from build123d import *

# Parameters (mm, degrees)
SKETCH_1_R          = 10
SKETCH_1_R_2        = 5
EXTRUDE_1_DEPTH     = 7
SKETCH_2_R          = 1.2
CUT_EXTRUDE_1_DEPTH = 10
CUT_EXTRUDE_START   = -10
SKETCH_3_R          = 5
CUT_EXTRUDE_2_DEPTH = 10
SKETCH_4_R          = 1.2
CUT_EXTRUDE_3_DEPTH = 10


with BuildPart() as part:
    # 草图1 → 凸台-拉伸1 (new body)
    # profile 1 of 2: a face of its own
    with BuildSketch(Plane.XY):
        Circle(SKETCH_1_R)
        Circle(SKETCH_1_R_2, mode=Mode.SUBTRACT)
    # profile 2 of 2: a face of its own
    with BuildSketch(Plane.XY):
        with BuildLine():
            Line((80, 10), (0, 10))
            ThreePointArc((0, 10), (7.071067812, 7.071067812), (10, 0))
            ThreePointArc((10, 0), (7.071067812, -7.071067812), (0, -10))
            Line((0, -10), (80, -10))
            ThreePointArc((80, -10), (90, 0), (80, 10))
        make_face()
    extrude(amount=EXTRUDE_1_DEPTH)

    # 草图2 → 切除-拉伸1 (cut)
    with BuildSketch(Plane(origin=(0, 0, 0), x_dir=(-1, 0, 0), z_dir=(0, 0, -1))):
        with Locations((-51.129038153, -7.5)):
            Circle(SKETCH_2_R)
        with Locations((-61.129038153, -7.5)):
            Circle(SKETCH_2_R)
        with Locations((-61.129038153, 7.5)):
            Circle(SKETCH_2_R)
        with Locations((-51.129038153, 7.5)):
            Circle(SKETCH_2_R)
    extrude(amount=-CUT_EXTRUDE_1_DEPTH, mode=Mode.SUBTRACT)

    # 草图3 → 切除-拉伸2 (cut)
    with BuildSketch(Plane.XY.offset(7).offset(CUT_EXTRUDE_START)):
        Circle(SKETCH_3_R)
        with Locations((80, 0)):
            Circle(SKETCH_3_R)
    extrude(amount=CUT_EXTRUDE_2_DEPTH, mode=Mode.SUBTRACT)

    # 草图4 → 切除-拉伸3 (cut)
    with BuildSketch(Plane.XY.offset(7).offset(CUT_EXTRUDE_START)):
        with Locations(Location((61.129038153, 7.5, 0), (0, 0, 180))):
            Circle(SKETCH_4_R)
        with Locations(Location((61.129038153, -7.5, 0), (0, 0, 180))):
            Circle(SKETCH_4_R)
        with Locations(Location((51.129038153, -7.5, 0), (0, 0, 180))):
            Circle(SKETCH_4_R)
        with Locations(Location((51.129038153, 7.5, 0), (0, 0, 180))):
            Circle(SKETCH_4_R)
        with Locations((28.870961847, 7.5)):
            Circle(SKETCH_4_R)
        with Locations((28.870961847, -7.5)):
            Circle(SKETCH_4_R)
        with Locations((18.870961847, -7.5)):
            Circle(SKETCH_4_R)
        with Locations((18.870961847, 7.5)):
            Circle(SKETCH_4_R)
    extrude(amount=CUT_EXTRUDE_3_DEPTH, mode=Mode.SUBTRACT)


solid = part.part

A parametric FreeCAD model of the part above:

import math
import FreeCAD as App
import Part
import Sketcher
from FreeCAD import Vector
Q = App.Units.Quantity

doc = App.newDocument("Part")
body = doc.addObject("PartDesign::Body", "Body")

sketch1 = body.newObject("Sketcher::SketchObject", "Sketch")
sketch1.AttachmentSupport = (doc.getObject("XY_Plane"), [""])
sketch1.MapMode = "FlatFace"
sketch1.addGeometry([
    Part.ArcOfCircle(Part.Circle(Vector(0, 0, 0), Vector(0, 0, 1), 10), math.radians(90), math.radians(270)),
    Part.LineSegment(Vector(0, -10, 0), Vector(80, -10, 0)),
    Part.ArcOfCircle(Part.Circle(Vector(80, 0, 0), Vector(0, 0, 1), 10), math.radians(-90), math.radians(90)),
    Part.LineSegment(Vector(80, 10, 0), Vector(0, 10, 0)),
    Part.Circle(Vector(0, 0, 0), Vector(0, 0, 1), 5),
], False)
sketch1.addConstraint([
    Sketcher.Constraint("Tangent", 0, 2, 1, 1),
    Sketcher.Constraint("Tangent", 1, 2, 2, 1),
    Sketcher.Constraint("Tangent", 2, 2, 3, 1),
    Sketcher.Constraint("Tangent", 3, 2, 0, 1),
    Sketcher.Constraint("Horizontal", 1),
    Sketcher.Constraint("Horizontal", 3),
    Sketcher.Constraint("Coincident", 0, 3, -1, 1),
    Sketcher.Constraint("Coincident", 4, 3, -1, 1),
    Sketcher.Constraint("Diameter", 4, Q("10 mm")),
    Sketcher.Constraint("Radius", 0, Q("10 mm")),
    Sketcher.Constraint("DistanceX", 1, 1, 1, 2, Q("80 mm")),
])
pad1 = body.newObject("PartDesign::Pad", "Pad")
pad1.Profile = sketch1
pad1.Length = 7

sketch2 = body.newObject("Sketcher::SketchObject", "Sketch001")
sketch2.AttachmentSupport = (doc.getObject("XY_Plane"), [""])
sketch2.MapMode = "FlatFace"
sketch2.addGeometry([
    Part.Circle(Vector(51.1, -7.5, 0), Vector(0, 0, 1), 1.2),
    Part.Circle(Vector(61.1, -7.5, 0), Vector(0, 0, 1), 1.2),
    Part.Circle(Vector(61.1, 7.5, 0), Vector(0, 0, 1), 1.2),
    Part.Circle(Vector(51.1, 7.5, 0), Vector(0, 0, 1), 1.2),
], False)
sketch2.addConstraint([
    Sketcher.Constraint("Equal", 0, 1),
    Sketcher.Constraint("Equal", 1, 2),
    Sketcher.Constraint("Equal", 2, 3),
    Sketcher.Constraint("Symmetric", 1, 3, 2, 3, -1),
    Sketcher.Constraint("Symmetric", 0, 3, 3, 3, -1),
    Sketcher.Constraint("Horizontal", 0, 3, 1, 3),
    Sketcher.Constraint("Diameter", 0, Q("2.4 mm")),
    Sketcher.Constraint("DistanceX", 0, 3, 1, 3, Q("10 mm")),
    Sketcher.Constraint("DistanceY", 1, 3, 2, 3, Q("15 mm")),
    Sketcher.Constraint("DistanceX", -1, 1, 0, 3, Q("51.129038 mm")),
])
pocket1 = body.newObject("PartDesign::Pocket", "Pocket")
pocket1.Profile = sketch2
pocket1.Length = 10
pocket1.Reversed = True

sketch3 = body.newObject("Sketcher::SketchObject", "Sketch002")
sketch3.AttachmentSupport = (doc.getObject("XY_Plane"), [""])
sketch3.MapMode = "FlatFace"
sketch3.AttachmentOffset = App.Placement(Vector(0, 0, -3), App.Rotation())
sketch3.addGeometry([
    Part.Circle(Vector(0, 0, 0), Vector(0, 0, 1), 5),
    Part.Circle(Vector(80, 0, 0), Vector(0, 0, 1), 5),
], False)
sketch3.addConstraint([
    Sketcher.Constraint("Coincident", 0, 3, -1, 1),
    Sketcher.Constraint("Equal", 0, 1),
    Sketcher.Constraint("PointOnObject", 1, 3, -1),
    Sketcher.Constraint("Diameter", 0, Q("10 mm")),
    Sketcher.Constraint("DistanceX", -1, 1, 1, 3, Q("80 mm")),
])
pocket2 = body.newObject("PartDesign::Pocket", "Pocket001")
pocket2.Profile = sketch3
pocket2.Length = 10
pocket2.Reversed = True

sketch4 = body.newObject("Sketcher::SketchObject", "Sketch003")
sketch4.AttachmentSupport = (doc.getObject("XY_Plane"), [""])
sketch4.MapMode = "FlatFace"
sketch4.AttachmentOffset = App.Placement(Vector(0, 0, -3), App.Rotation())
sketch4.addGeometry([
    Part.Circle(Vector(61.1, 7.5, 0), Vector(0, 0, 1), 1.2),
    Part.Circle(Vector(61.1, -7.5, 0), Vector(0, 0, 1), 1.2),
    Part.Circle(Vector(51.1, -7.5, 0), Vector(0, 0, 1), 1.2),
    Part.Circle(Vector(51.1, 7.5, 0), Vector(0, 0, 1), 1.2),
    Part.Circle(Vector(28.9, 7.5, 0), Vector(0, 0, 1), 1.2),
    Part.Circle(Vector(28.9, -7.5, 0), Vector(0, 0, 1), 1.2),
    Part.Circle(Vector(18.9, -7.5, 0), Vector(0, 0, 1), 1.2),
    Part.Circle(Vector(18.9, 7.5, 0), Vector(0, 0, 1), 1.2),
], False)
sketch4.addConstraint([
    Sketcher.Constraint("Equal", 0, 1),
    Sketcher.Constraint("Equal", 1, 2),
    Sketcher.Constraint("Equal", 2, 3),
    Sketcher.Constraint("Equal", 3, 4),
    Sketcher.Constraint("Equal", 4, 5),
    Sketcher.Constraint("Equal", 5, 6),
    Sketcher.Constraint("Equal", 6, 7),
    Sketcher.Constraint("Symmetric", 0, 3, 1, 3, -1),
    Sketcher.Constraint("Symmetric", 2, 3, 3, 3, -1),
    Sketcher.Constraint("Symmetric", 4, 3, 5, 3, -1),
    Sketcher.Constraint("Symmetric", 6, 3, 7, 3, -1),
    Sketcher.Constraint("Horizontal", 1, 3, 2, 3),
    Sketcher.Constraint("Horizontal", 3, 3, 4, 3),
    Sketcher.Constraint("Horizontal", 5, 3, 6, 3),
    Sketcher.Constraint("Diameter", 0, Q("2.4 mm")),
    Sketcher.Constraint("DistanceY", 1, 3, 0, 3, Q("15 mm")),
    Sketcher.Constraint("DistanceX", 2, 3, 1, 3, Q("10 mm")),
    Sketcher.Constraint("DistanceX", 6, 3, 5, 3, Q("10 mm")),
    Sketcher.Constraint("DistanceX", -1, 1, 0, 3, Q("61.129038 mm")),
    Sketcher.Constraint("DistanceX", -1, 1, 4, 3, Q("28.870962 mm")),
])
pocket3 = body.newObject("PartDesign::Pocket", "Pocket002")
pocket3.Profile = sketch4
pocket3.Length = 10
pocket3.Reversed = True

doc.recompute()
